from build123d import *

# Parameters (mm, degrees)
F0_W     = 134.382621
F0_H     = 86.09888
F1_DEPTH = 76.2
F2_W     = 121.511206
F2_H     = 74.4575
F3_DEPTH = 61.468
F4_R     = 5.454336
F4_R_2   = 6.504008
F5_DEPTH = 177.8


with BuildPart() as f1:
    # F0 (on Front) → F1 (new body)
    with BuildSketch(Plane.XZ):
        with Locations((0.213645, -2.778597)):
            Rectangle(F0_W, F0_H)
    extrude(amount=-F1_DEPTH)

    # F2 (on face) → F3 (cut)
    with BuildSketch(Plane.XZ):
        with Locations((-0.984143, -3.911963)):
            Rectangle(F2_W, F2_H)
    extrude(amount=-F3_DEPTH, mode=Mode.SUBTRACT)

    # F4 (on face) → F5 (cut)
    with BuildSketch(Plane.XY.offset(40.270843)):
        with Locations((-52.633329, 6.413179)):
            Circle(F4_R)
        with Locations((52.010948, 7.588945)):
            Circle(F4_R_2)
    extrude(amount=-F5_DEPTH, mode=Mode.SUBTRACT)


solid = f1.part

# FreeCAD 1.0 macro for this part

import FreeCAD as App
import Part
import Sketcher

V = App.Vector
Q = App.Units.Quantity


def add_polygon(sketch, points):
    """Adds a closed chain of lines whose ends are joined by coincident constraints."""
    first, n = sketch.GeometryCount, len(points)
    for a, b in zip(points, points[1:] + points[:1]):
        sketch.addGeometry(Part.LineSegment(App.Vector(*a, 0), App.Vector(*b, 0)), False)
    for i in range(n):
        sketch.addConstraint(Sketcher.Constraint("Coincident", first + i, 2, first + (i + 1) % n, 1))

doc = App.newDocument("Part")
body = doc.addObject("PartDesign::Body", "Body")

sketch1 = body.newObject("Sketcher::SketchObject", "Sketch")
sketch1.AttachmentSupport = (doc.getObject("XZ_Plane"), [""])
sketch1.MapMode = "FlatFace"
add_polygon(sketch1, [(-67, 40), (-67, -46), (67, -46), (67, 40)])
sketch1.addConstraint(Sketcher.Constraint("Vertical", 0))
sketch1.addConstraint(Sketcher.Constraint("Horizontal", 1))
sketch1.addConstraint(Sketcher.Constraint("Vertical", 2))
sketch1.addConstraint(Sketcher.Constraint("Horizontal", 3))
sketch1.addConstraint(Sketcher.Constraint("DistanceX", 1, 1, 1, 2, 134.382621))
sketch1.addConstraint(Sketcher.Constraint("DistanceY", 0, 2, 0, 1, 86.09888))
sketch1.addConstraint(Sketcher.Constraint("DistanceX", 0, 2, -1, 1, 66.977666))
sketch1.addConstraint(Sketcher.Constraint("DistanceY", 0, 2, -1, 1, 45.828037))
pad1 = body.newObject("PartDesign::Pad", "Pad")
pad1.Profile = sketch1
pad1.Length = Q("3 in")
pad1.Reversed = True

sketch2 = body.newObject("Sketcher::SketchObject", "Sketch001")
sketch2.AttachmentSupport = (doc.getObject("XZ_Plane"), [""])
sketch2.MapMode = "FlatFace"
add_polygon(sketch2, [(-62, 33), (-62, -41), (60, -41), (60, 33)])
sketch2.addConstraint(Sketcher.Constraint("Vertical", 0))
sketch2.addConstraint(Sketcher.Constraint("Horizontal", 1))
sketch2.addConstraint(Sketcher.Constraint("Vertical", 2))
sketch2.addConstraint(Sketcher.Constraint("Horizontal", 3))
sketch2.addConstraint(Sketcher.Constraint("DistanceY", 0, 2, 0, 1, 74.4575))
sketch2.addConstraint(Sketcher.Constraint("DistanceX", 1, 1, 1, 2, 121.511206))
sketch2.addConstraint(Sketcher.Constraint("DistanceX", -1, 1, 1, 2, 59.77146))
sketch2.addConstraint(Sketcher.Constraint("DistanceY", 0, 2, -1, 1, 41.140713))
pocket1 = body.newObject("PartDesign::Pocket", "Pocket")
pocket1.Profile = sketch2
pocket1.Length = Q("2.42 in")

sketch3 = body.newObject("Sketcher::SketchObject", "Sketch002")
sketch3.AttachmentSupport = (doc.getObject("XY_Plane"), [""])
sketch3.MapMode = "FlatFace"
sketch3.AttachmentOffset = App.Placement(V(0, 0, 40.270843), App.Rotation())
sketch3.addGeometry(Part.Circle(V(-53, 6, 0), V(0, 0, 1), 5), False)
sketch3.addGeometry(Part.Circle(V(52, 8, 0), V(0, 0, 1), 7), False)
sketch3.addConstraint(Sketcher.Constraint("Diameter", 0, 10.908672))
sketch3.addConstraint(Sketcher.Constraint("Diameter", 1, 13.008016))
sketch3.addConstraint(Sketcher.Constraint("DistanceX", 0, 3, -1, 1, 52.633329))
sketch3.addConstraint(Sketcher.Constraint("DistanceY", -1, 1, 0, 3, 6.413179))
sketch3.addConstraint(Sketcher.Constraint("DistanceX", -1, 1, 1, 3, 52.010948))
sketch3.addConstraint(Sketcher.Constraint("DistanceY", -1, 1, 1, 3, 7.588945))
pocket2 = body.newObject("PartDesign::Pocket", "Pocket001")
pocket2.Profile = sketch3
pocket2.Length = Q("7 in")

doc.recompute()
